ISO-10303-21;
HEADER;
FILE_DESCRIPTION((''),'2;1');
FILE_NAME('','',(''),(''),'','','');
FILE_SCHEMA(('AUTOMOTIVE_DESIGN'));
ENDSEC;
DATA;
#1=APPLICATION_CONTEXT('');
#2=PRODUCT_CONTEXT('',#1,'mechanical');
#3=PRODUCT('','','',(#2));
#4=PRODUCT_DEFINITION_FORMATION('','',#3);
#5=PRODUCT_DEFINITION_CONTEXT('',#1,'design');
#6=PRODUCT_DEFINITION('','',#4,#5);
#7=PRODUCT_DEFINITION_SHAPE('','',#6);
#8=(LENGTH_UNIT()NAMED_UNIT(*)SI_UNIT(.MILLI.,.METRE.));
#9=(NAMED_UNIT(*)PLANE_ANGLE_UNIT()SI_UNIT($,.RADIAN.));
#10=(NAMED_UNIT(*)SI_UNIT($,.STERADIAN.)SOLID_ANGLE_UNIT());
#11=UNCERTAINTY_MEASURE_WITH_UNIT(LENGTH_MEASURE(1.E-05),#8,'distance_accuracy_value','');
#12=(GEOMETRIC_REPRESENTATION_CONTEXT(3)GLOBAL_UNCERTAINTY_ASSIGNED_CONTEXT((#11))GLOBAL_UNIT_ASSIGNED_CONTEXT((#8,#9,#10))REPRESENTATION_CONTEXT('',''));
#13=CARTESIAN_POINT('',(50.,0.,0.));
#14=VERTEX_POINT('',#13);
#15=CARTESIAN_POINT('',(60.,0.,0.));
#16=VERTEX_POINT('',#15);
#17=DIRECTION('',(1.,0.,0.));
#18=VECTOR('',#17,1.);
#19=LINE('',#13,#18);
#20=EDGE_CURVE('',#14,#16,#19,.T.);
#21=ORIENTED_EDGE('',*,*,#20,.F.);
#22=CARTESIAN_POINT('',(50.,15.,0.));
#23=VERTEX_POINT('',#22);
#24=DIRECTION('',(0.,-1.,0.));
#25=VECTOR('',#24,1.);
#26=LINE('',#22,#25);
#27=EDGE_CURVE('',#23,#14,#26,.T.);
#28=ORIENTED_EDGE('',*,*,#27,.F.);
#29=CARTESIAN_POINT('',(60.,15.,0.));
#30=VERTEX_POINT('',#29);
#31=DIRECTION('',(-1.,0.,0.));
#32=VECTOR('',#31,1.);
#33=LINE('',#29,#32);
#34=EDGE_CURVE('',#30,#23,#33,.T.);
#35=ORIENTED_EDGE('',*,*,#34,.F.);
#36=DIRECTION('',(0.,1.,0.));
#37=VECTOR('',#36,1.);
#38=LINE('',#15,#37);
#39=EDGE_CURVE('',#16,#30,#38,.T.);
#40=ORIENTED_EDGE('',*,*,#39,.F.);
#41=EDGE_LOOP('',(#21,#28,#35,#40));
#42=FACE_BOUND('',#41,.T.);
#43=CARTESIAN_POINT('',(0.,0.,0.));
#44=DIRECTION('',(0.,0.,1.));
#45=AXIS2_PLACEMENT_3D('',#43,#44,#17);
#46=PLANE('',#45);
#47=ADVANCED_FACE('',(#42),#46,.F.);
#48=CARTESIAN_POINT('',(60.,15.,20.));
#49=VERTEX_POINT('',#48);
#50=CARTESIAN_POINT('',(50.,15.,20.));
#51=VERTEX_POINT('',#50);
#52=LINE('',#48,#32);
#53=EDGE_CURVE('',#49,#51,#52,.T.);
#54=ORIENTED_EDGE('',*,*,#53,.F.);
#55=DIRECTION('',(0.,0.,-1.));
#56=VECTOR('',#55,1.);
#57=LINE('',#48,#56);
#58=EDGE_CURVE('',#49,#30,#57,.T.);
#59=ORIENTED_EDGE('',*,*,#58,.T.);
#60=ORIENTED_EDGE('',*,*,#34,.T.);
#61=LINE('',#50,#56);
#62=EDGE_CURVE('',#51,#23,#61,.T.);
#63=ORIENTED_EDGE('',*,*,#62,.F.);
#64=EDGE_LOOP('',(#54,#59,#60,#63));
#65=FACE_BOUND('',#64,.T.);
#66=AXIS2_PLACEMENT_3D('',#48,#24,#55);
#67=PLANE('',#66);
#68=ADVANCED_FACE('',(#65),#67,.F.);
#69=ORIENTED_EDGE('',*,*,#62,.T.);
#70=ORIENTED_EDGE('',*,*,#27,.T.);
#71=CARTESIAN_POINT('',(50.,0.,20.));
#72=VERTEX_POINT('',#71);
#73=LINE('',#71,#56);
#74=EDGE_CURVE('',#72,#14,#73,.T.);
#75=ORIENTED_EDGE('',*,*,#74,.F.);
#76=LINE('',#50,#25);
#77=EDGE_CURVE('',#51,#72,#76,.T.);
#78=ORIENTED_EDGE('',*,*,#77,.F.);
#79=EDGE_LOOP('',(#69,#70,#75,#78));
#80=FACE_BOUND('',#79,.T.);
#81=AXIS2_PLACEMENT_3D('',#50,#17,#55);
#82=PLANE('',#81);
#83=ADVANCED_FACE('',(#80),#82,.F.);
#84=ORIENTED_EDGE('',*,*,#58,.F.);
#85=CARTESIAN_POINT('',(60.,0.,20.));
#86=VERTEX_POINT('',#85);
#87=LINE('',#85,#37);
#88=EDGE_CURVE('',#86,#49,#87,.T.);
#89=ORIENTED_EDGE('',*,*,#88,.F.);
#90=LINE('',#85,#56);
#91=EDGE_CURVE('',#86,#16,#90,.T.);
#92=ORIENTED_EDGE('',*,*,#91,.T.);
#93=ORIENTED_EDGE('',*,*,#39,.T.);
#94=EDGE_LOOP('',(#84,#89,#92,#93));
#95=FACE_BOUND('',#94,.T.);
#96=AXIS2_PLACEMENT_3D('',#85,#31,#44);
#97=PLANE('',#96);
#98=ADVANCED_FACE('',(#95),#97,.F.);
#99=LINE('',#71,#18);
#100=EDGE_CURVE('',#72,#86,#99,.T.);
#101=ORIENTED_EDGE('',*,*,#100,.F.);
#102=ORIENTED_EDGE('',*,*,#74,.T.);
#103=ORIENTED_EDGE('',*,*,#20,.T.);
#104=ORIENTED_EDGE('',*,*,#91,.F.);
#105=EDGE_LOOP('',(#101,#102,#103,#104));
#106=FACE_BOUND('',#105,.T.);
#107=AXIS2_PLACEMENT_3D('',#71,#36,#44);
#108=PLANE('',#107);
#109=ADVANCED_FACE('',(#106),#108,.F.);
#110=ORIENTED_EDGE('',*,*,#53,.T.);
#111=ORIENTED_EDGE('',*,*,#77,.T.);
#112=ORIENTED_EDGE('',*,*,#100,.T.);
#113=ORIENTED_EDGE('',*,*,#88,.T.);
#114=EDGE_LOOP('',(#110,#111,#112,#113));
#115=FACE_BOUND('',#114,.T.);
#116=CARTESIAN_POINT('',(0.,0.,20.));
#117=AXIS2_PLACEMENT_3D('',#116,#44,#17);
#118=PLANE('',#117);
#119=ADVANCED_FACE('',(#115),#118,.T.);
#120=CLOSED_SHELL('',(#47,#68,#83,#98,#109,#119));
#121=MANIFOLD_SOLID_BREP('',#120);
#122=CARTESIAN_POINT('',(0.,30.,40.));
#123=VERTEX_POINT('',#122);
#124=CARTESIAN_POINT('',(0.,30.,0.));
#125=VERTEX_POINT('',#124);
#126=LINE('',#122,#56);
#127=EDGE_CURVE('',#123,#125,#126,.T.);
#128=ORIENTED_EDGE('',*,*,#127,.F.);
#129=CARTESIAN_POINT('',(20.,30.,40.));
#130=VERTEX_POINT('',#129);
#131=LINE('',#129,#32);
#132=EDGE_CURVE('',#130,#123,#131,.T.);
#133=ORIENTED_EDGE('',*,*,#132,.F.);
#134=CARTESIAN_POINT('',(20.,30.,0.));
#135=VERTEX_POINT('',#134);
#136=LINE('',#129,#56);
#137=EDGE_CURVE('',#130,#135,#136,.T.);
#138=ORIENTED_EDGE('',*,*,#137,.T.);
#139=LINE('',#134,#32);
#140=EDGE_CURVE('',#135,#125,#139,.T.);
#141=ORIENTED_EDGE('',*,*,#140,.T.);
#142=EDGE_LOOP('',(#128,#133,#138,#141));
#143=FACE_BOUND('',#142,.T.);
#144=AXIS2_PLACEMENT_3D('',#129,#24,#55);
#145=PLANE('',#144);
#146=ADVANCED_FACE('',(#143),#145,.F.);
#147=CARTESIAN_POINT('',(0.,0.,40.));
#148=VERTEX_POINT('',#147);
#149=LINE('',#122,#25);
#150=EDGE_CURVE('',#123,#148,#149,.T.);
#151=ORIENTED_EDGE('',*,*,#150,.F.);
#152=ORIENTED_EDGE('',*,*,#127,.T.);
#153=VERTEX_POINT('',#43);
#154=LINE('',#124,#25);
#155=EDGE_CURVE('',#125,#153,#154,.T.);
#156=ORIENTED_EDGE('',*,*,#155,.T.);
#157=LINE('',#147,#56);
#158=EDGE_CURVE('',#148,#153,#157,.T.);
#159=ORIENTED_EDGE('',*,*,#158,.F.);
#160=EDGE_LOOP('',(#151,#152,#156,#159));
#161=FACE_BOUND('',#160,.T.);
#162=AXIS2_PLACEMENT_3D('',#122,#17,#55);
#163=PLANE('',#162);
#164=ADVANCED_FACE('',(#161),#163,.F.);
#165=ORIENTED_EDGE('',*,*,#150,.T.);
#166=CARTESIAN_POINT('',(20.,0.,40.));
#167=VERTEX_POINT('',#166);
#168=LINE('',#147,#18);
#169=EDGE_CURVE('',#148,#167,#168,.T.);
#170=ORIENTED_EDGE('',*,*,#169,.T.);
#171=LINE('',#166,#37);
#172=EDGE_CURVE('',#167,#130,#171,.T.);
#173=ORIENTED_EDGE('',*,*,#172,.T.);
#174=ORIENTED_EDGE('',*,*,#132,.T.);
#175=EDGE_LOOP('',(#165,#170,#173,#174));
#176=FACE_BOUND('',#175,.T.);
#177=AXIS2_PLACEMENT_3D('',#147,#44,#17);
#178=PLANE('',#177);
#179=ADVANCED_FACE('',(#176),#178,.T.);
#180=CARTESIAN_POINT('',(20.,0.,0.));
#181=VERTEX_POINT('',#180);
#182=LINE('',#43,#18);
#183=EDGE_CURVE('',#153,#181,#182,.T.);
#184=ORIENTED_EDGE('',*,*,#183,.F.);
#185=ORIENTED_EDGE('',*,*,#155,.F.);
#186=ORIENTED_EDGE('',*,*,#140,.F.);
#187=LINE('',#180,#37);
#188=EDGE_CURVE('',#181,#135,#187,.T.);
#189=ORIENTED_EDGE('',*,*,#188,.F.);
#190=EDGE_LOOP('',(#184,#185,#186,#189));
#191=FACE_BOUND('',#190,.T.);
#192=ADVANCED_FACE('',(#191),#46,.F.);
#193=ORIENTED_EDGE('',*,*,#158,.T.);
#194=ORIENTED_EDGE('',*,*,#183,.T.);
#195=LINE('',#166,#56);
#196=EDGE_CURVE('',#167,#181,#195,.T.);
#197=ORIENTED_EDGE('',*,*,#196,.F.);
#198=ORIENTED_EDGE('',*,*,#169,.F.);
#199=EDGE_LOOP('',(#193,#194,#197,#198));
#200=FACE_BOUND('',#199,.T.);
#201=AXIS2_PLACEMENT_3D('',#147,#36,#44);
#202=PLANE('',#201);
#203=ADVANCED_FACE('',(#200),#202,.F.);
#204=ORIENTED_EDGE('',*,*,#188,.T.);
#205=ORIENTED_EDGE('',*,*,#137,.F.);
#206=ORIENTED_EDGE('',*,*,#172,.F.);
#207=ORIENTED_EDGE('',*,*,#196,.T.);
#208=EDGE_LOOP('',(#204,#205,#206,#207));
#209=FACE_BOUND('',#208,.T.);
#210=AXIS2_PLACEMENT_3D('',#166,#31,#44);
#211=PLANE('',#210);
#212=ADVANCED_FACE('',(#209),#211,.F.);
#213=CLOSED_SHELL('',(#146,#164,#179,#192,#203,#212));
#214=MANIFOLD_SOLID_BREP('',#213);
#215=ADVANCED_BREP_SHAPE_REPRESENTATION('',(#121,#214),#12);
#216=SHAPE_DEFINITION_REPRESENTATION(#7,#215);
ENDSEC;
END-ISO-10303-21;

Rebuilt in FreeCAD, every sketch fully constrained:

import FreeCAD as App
import Part
import Sketcher
from FreeCAD import Vector

doc = App.newDocument("Part")
params = doc.addObject("Spreadsheet::Sheet", "Params")
for row, (alias, value) in enumerate([
    ("sketch1_width", "20 mm"),
    ("sketch1_height", "30 mm"),
    ("pad1_length", "40 mm"),
    ("sketch2_width", "10 mm"),
    ("sketch2_height", "15 mm"),
    ("pad2_length", "20 mm"),
], start=1):
    params.set(f"A{row}", alias)
    params.set(f"B{row}", "=" + value)
    params.setAlias(f"B{row}", alias)

body = doc.addObject("PartDesign::Body", "Body")

# Sketch on XY plane
sketch1 = body.newObject("Sketcher::SketchObject", "Sketch")
sketch1.AttachmentSupport = (doc.getObject("XY_Plane"), [""])
sketch1.MapMode = "FlatFace"
sketch1.addGeometry([
    Part.LineSegment(Vector(0, 30, 0), Vector(0, 0, 0)),
    Part.LineSegment(Vector(0, 0, 0), Vector(20, 0, 0)),
    Part.LineSegment(Vector(20, 0, 0), Vector(20, 30, 0)),
    Part.LineSegment(Vector(20, 30, 0), Vector(0, 30, 0)),
], False)
sketch1.addConstraint([
    Sketcher.Constraint("Coincident", 0, 2, 1, 1),
    Sketcher.Constraint("Coincident", 1, 2, 2, 1),
    Sketcher.Constraint("Coincident", 2, 2, 3, 1),
    Sketcher.Constraint("Coincident", 3, 2, 0, 1),
    Sketcher.Constraint("Vertical", 0),
    Sketcher.Constraint("Horizontal", 1),
    Sketcher.Constraint("Vertical", 2),
    Sketcher.Constraint("Horizontal", 3),
    Sketcher.Constraint("Coincident", 0, 2, -1, 1),
    Sketcher.Constraint("DistanceX", 1, 1, 1, 2, 20.0),
    Sketcher.Constraint("DistanceY", 0, 2, 0, 1, 30.0),
])
sketch1.setExpression("Constraints[9]", "Params.sketch1_width")
sketch1.setExpression("Constraints[10]", "Params.sketch1_height")
pad1 = body.newObject("PartDesign::Pad", "Pad")
pad1.Profile = sketch1
pad1.setExpression("Length", "Params.pad1_length")
body2 = doc.addObject("PartDesign::Body", "Body001")

# Sketch on XY plane
sketch2 = body2.newObject("Sketcher::SketchObject", "Sketch001")
sketch2.AttachmentSupport = (doc.getObject("XY_Plane001"), [""])
sketch2.MapMode = "FlatFace"
sketch2.addGeometry([
    Part.LineSegment(Vector(50, 15, 0), Vector(50, 0, 0)),
    Part.LineSegment(Vector(50, 0, 0), Vector(60, 0, 0)),
    Part.LineSegment(Vector(60, 0, 0), Vector(60, 15, 0)),
    Part.LineSegment(Vector(60, 15, 0), Vector(50, 15, 0)),
], False)
sketch2.addConstraint([
    Sketcher.Constraint("Coincident", 0, 2, 1, 1),
    Sketcher.Constraint("Coincident", 1, 2, 2, 1),
    Sketcher.Constraint("Coincident", 2, 2, 3, 1),
    Sketcher.Constraint("Coincident", 3, 2, 0, 1),
    Sketcher.Constraint("Vertical", 0),
    Sketcher.Constraint("Horizontal", 1),
    Sketcher.Constraint("Vertical", 2),
    Sketcher.Constraint("Horizontal", 3),
    Sketcher.Constraint("PointOnObject", 0, 2, -1),
    Sketcher.Constraint("DistanceX", 1, 1, 1, 2, 10.0),
    Sketcher.Constraint("DistanceY", 0, 2, 0, 1, 15.0),
    Sketcher.Constraint("DistanceX", -1, 1, 0, 2, 50.0),
])
sketch2.setExpression("Constraints[9]", "Params.sketch2_width")
sketch2.setExpression("Constraints[10]", "Params.sketch2_height")
pad2 = body2.newObject("PartDesign::Pad", "Pad001")
pad2.Profile = sketch2
pad2.setExpression("Length", "Params.pad2_length")

doc.recompute()
